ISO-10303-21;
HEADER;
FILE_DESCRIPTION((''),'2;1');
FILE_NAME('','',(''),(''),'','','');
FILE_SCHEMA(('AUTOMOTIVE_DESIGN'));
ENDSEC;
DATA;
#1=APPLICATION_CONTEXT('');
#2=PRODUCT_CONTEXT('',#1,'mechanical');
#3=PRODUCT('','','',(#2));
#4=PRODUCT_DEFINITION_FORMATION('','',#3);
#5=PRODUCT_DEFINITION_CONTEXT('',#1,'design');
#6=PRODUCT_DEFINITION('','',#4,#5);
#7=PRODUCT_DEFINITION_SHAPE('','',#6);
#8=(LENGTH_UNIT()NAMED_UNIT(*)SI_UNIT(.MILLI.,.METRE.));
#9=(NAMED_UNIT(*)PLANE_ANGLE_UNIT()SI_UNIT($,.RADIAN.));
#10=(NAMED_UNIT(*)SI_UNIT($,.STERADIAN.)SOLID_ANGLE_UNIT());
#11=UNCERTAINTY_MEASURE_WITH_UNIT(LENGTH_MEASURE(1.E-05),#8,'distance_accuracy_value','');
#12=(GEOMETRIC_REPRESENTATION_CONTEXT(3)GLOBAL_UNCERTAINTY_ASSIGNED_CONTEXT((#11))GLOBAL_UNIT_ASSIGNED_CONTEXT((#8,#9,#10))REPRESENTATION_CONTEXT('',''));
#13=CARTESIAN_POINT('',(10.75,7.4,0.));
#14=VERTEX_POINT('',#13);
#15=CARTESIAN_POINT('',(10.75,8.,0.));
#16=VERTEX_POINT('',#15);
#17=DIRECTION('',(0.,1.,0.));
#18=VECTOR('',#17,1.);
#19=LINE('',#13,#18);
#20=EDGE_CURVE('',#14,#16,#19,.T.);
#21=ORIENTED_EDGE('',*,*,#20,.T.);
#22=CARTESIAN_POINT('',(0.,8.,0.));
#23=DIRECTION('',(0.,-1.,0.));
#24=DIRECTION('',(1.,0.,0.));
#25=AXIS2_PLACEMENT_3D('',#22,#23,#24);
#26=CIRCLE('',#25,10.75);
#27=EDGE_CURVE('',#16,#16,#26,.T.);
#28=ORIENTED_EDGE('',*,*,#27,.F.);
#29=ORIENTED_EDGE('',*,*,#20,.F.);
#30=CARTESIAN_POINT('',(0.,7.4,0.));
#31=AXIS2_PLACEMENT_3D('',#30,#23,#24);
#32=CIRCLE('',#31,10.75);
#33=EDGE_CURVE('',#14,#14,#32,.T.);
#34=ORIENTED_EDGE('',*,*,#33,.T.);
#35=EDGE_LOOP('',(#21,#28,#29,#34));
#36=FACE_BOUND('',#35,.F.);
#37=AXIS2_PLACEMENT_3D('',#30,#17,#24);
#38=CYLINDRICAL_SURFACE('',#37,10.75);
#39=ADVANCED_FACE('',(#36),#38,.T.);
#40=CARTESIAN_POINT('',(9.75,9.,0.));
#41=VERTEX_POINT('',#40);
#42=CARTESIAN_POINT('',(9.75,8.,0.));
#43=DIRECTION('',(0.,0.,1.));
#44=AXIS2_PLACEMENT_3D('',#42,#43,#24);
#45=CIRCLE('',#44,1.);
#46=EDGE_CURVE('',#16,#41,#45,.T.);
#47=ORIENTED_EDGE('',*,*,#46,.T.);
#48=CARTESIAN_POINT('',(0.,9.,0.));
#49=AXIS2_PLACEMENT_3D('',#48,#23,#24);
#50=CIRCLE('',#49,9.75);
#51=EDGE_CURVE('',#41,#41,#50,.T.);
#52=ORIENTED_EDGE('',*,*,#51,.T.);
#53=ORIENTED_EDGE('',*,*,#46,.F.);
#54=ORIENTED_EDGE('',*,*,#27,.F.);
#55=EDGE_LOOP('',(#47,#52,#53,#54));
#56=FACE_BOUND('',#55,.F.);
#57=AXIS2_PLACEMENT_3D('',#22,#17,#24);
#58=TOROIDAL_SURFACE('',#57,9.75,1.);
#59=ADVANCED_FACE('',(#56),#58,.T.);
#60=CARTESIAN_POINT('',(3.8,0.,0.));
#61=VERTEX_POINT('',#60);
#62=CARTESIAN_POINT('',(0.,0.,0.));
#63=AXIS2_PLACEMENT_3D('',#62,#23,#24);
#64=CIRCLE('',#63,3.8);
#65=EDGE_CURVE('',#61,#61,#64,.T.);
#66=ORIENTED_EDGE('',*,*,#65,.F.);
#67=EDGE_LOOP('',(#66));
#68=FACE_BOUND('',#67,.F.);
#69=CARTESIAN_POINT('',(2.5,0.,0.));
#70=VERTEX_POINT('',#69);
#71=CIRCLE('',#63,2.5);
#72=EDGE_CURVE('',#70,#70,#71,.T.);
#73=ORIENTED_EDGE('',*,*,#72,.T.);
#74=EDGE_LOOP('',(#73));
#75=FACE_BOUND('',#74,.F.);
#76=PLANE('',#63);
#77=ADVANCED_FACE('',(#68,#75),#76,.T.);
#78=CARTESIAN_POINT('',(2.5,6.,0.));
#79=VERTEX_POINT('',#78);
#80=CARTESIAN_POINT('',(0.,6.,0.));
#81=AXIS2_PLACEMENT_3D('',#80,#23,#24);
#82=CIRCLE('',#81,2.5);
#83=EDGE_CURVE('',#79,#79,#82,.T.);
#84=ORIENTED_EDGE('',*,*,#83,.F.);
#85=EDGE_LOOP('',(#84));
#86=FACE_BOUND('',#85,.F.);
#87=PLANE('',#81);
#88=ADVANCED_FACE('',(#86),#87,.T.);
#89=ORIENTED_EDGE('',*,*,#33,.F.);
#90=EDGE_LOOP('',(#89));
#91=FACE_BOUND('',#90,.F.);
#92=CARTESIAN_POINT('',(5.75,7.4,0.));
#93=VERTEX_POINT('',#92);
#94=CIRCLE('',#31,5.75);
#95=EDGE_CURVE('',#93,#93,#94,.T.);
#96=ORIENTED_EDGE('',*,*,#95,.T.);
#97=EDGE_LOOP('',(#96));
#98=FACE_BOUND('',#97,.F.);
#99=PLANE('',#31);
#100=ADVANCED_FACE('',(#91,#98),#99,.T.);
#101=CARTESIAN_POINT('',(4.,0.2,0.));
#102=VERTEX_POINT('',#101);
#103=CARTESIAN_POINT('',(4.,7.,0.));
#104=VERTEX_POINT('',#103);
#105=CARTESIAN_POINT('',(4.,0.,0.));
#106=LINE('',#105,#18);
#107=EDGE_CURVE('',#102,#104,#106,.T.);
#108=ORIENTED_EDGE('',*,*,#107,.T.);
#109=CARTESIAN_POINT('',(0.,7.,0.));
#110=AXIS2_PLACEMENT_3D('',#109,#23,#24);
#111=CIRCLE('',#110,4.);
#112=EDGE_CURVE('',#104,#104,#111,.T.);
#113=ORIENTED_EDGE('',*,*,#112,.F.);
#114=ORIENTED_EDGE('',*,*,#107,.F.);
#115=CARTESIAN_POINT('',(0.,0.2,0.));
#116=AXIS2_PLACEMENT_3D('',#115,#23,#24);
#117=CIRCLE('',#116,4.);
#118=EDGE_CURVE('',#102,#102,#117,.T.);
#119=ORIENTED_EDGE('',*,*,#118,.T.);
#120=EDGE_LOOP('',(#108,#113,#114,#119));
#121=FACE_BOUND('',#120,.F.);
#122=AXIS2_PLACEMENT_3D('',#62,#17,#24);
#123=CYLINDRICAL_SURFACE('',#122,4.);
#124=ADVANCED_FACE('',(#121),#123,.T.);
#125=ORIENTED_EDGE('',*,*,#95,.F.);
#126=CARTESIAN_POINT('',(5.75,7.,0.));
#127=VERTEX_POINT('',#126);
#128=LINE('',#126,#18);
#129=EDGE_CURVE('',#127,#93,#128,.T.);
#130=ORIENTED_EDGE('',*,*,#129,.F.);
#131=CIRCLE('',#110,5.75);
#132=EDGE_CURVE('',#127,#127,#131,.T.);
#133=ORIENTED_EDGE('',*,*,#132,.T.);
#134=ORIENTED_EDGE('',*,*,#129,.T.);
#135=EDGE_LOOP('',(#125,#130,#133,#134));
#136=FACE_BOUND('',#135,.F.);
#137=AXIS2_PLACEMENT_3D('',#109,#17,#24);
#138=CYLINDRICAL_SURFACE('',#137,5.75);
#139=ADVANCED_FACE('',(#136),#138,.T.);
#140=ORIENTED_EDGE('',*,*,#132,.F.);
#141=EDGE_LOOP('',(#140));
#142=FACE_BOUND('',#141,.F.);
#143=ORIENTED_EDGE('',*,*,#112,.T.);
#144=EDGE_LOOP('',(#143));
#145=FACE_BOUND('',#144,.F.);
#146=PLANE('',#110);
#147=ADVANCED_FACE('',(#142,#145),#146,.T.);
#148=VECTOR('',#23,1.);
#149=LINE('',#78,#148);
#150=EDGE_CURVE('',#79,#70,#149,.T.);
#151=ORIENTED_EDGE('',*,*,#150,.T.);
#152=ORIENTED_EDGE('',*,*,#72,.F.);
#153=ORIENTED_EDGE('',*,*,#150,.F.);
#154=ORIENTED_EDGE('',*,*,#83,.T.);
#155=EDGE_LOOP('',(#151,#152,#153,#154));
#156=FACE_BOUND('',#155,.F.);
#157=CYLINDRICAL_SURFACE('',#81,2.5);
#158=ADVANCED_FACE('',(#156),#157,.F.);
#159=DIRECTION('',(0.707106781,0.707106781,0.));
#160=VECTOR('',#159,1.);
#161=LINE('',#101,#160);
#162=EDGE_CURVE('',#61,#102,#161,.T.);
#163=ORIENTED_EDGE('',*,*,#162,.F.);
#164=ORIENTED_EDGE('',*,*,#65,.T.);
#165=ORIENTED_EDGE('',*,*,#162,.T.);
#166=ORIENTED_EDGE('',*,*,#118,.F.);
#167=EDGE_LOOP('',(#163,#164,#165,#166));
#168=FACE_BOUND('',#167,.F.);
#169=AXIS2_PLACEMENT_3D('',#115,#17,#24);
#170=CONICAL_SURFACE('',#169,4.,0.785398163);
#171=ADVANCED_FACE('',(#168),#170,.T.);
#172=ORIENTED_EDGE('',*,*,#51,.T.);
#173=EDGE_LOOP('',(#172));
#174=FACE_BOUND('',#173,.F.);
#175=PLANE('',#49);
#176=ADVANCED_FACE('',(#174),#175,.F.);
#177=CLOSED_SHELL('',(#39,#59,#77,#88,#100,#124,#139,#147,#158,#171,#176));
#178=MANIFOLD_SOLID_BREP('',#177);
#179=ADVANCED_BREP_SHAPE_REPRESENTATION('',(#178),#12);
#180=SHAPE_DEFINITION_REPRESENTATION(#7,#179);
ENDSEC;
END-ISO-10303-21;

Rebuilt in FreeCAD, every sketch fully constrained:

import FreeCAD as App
import Part
import Sketcher


def edges_at(feature, points):
    """Names of the edges that pass closest to the given points."""
    edges = feature.Shape.Edges
    near = lambda p: min(range(len(edges)), key=lambda i: edges[i].distToShape(Part.Vertex(*p))[0])
    return sorted({f"Edge{near(p) + 1}" for p in points})

doc = App.newDocument("Part")
params = doc.addObject("Spreadsheet::Sheet", "Params")
for row, (alias, value) in enumerate([
    ("sketch1_width", "5 mm"),
    ("sketch1_height", "6 mm"),
    ("sketch1_height2", "7 mm"),
    ("sketch1_height3", "3 mm"),
    ("sketch1_width2", "1.5 mm"),
    ("revolution_angle", "360 deg"),
    ("chamfer_size", "0.2 mm"),
    ("fillet_radius", "1 mm"),
], start=1):
    params.set(f"A{row}", alias)
    params.set(f"B{row}", "=" + value)
    params.setAlias(f"B{row}", alias)

body = doc.addObject("PartDesign::Body", "Body")

sketch1 = body.newObject("Sketcher::SketchObject", "Sketch")
sketch1.AttachmentSupport = (doc.getObject("XY_Plane"), [""])
sketch1.MapMode = "FlatFace"
sketch1.addGeometry(Part.LineSegment(App.Vector(2.5, 6, 0), App.Vector(2.5, 0, 0)), False)
sketch1.addGeometry(Part.LineSegment(App.Vector(2.5, 0, 0), App.Vector(4, 0, 0)), False)
sketch1.addGeometry(Part.LineSegment(App.Vector(4, 0, 0), App.Vector(4, 7, 0)), False)
sketch1.addGeometry(Part.LineSegment(App.Vector(4, 7, 0), App.Vector(5.75, 7, 0)), False)
sketch1.addGeometry(Part.LineSegment(App.Vector(5.75, 7, 0), App.Vector(5.75, 7.4, 0)), False)
sketch1.addGeometry(Part.LineSegment(App.Vector(5.75, 7.4, 0), App.Vector(10.75, 7.4, 0)), False)
sketch1.addGeometry(Part.LineSegment(App.Vector(10.75, 7.4, 0), App.Vector(10.75, 9, 0)), False)
sketch1.addGeometry(Part.LineSegment(App.Vector(10.75, 9, 0), App.Vector(0, 9, 0)), False)
sketch1.addGeometry(Part.LineSegment(App.Vector(0, 9, 0), App.Vector(0, 6, 0)), False)
sketch1.addGeometry(Part.LineSegment(App.Vector(0, 6, 0), App.Vector(2.5, 6, 0)), False)
sketch1.addConstraint(Sketcher.Constraint("Coincident", 0, 2, 1, 1))
sketch1.addConstraint(Sketcher.Constraint("Coincident", 1, 2, 2, 1))
sketch1.addConstraint(Sketcher.Constraint("Coincident", 2, 2, 3, 1))
sketch1.addConstraint(Sketcher.Constraint("Coincident", 3, 2, 4, 1))
sketch1.addConstraint(Sketcher.Constraint("Coincident", 4, 2, 5, 1))
sketch1.addConstraint(Sketcher.Constraint("Coincident", 5, 2, 6, 1))
sketch1.addConstraint(Sketcher.Constraint("Coincident", 6, 2, 7, 1))
sketch1.addConstraint(Sketcher.Constraint("Coincident", 7, 2, 8, 1))
sketch1.addConstraint(Sketcher.Constraint("Coincident", 8, 2, 9, 1))
sketch1.addConstraint(Sketcher.Constraint("Coincident", 9, 2, 0, 1))
sketch1.addConstraint(Sketcher.Constraint("Vertical", 0))
sketch1.addConstraint(Sketcher.Constraint("Horizontal", 1))
sketch1.addConstraint(Sketcher.Constraint("Vertical", 2))
sketch1.addConstraint(Sketcher.Constraint("Horizontal", 3))
sketch1.addConstraint(Sketcher.Constraint("Vertical", 4))
sketch1.addConstraint(Sketcher.Constraint("Horizontal", 5))
sketch1.addConstraint(Sketcher.Constraint("Vertical", 6))
sketch1.addConstraint(Sketcher.Constraint("Horizontal", 7))
sketch1.addConstraint(Sketcher.Constraint("Vertical", 8))
sketch1.addConstraint(Sketcher.Constraint("Horizontal", 9))
sketch1.addConstraint(Sketcher.Constraint("PointOnObject", 0, 2, -1))
sketch1.addConstraint(Sketcher.Constraint("PointOnObject", 7, 2, -2))
sketch1.addConstraint(Sketcher.Constraint("DistanceX", 5, 1, 5, 2, 5.0))
sketch1.addConstraint(Sketcher.Constraint("DistanceY", 0, 2, 0, 1, 6.0))
sketch1.addConstraint(Sketcher.Constraint("DistanceY", 2, 1, 2, 2, 7.0))
sketch1.addConstraint(Sketcher.Constraint("DistanceY", 8, 2, 8, 1, 3.0))
sketch1.addConstraint(Sketcher.Constraint("DistanceX", 1, 1, 1, 2, 1.5))
sketch1.addConstraint(Sketcher.Constraint("DistanceX", 9, 1, 9, 2, 2.5))
sketch1.addConstraint(Sketcher.Constraint("DistanceY", 4, 1, 4, 2, 0.4))
sketch1.addConstraint(Sketcher.Constraint("DistanceX", 3, 1, 3, 2, 1.75))
sketch1.setExpression("Constraints[22]", "Params.sketch1_width")
sketch1.setExpression("Constraints[23]", "Params.sketch1_height")
sketch1.setExpression("Constraints[24]", "Params.sketch1_height2")
sketch1.setExpression("Constraints[25]", "Params.sketch1_height3")
sketch1.setExpression("Constraints[26]", "Params.sketch1_width2")
revolution = body.newObject("PartDesign::Revolution", "Revolution")
revolution.Profile = sketch1
revolution.ReferenceAxis = (sketch1, ["V_Axis"])
revolution.setExpression("Angle", "Params.revolution_angle")
doc.recompute()

chamfer = body.newObject("PartDesign::Chamfer", "Chamfer")
chamfer.Base = (revolution, edges_at(revolution, [(-4, 0, 0)]))
chamfer.setExpression("Size", "Params.chamfer_size")
doc.recompute()

fillet = body.newObject("PartDesign::Fillet", "Fillet")
fillet.Base = (chamfer, edges_at(chamfer, [(-10.75, 9, 0)]))
fillet.setExpression("Radius", "Params.fillet_radius")

doc.recompute()
